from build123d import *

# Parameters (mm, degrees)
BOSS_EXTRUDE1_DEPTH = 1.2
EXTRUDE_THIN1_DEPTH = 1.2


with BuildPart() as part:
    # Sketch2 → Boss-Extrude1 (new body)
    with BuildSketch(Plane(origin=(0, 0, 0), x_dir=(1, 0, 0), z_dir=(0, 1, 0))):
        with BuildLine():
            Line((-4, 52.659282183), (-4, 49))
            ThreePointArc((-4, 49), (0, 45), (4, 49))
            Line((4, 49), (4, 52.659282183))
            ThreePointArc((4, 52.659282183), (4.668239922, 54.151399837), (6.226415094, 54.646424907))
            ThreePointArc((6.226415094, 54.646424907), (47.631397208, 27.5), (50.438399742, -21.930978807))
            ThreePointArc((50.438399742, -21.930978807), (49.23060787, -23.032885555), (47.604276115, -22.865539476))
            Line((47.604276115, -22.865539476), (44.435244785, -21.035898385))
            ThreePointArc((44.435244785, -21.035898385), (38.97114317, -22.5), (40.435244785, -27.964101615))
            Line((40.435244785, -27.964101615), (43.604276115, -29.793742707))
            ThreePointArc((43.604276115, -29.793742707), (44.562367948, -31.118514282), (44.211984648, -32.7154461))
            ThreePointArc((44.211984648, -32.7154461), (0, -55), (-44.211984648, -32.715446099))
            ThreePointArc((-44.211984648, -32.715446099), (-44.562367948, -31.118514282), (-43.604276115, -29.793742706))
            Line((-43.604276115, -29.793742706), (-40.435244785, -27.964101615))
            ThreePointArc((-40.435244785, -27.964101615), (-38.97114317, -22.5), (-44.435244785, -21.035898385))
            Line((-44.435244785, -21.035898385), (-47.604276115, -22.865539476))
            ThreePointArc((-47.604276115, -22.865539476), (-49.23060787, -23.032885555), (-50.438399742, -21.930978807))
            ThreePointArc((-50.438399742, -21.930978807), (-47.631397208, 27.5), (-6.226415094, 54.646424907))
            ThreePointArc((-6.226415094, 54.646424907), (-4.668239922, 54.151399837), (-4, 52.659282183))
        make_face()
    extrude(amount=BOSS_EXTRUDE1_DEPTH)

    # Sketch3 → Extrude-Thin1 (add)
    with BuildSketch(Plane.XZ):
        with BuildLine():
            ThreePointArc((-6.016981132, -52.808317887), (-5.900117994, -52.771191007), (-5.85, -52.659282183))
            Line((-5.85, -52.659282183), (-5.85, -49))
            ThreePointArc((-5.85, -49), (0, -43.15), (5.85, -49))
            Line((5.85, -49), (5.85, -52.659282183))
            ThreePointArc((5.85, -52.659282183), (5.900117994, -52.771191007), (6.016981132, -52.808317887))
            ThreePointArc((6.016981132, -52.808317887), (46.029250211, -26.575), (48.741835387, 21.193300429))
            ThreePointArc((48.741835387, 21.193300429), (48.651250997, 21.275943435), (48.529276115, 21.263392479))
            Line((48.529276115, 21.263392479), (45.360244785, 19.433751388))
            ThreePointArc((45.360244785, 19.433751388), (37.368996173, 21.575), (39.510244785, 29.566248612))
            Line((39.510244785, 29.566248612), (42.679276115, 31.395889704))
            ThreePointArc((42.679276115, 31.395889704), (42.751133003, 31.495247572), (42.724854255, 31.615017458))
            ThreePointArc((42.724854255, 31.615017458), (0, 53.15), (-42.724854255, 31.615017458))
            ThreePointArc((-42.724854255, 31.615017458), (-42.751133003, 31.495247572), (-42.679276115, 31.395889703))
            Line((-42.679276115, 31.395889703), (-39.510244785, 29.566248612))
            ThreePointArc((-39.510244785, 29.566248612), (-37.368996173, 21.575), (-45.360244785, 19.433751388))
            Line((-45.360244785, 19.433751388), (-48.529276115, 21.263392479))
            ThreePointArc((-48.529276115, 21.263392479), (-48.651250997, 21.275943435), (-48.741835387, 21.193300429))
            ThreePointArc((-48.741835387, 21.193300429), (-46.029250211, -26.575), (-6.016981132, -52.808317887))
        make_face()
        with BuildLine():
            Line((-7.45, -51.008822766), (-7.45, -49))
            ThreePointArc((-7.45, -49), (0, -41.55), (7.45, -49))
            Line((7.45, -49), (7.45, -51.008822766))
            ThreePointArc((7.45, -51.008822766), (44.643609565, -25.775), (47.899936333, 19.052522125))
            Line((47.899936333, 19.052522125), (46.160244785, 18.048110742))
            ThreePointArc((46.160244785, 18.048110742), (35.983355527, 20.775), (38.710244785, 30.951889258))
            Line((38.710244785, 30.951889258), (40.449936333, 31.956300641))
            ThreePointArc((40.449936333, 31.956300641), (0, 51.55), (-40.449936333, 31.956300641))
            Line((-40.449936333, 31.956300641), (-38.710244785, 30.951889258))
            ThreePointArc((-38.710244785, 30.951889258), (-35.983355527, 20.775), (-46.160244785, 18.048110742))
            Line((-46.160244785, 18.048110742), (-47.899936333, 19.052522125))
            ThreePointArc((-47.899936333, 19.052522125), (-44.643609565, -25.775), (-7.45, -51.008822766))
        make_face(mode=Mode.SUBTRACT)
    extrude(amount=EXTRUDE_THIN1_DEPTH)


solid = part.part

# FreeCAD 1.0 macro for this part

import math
import FreeCAD as App
import Part
import Sketcher
Q = App.Units.Quantity

doc = App.newDocument("Part")
body = doc.addObject("PartDesign::Body", "Body")

sketch1 = body.newObject("Sketcher::SketchObject", "Sketch")
sketch1.AttachmentSupport = (doc.getObject("XZ_Plane"), [""])
sketch1.MapMode = "FlatFace"
sketch1.addGeometry([
    Part.LineSegment(App.Vector(-4, -49, 0), App.Vector(-4, -52.7, 0)),
    Part.ArcOfCircle(Part.Circle(App.Vector(-6, -52.7, 0), App.Vector(0, 0, 1), 2), math.radians(-97), math.radians(0)),
    Part.ArcOfCircle(Part.Circle(App.Vector(0, 0, 0), App.Vector(0, 0, 1), 55), math.radians(157), math.radians(263)),
    Part.ArcOfCircle(Part.Circle(App.Vector(-48.6, 21.1, 0), App.Vector(0, 0, 1), 2), math.radians(60), math.radians(157)),
    Part.LineSegment(App.Vector(-47.6, 22.9, 0), App.Vector(-44.4, 21, 0)),
    Part.ArcOfCircle(Part.Circle(App.Vector(-42.4, 24.5, 0), App.Vector(0, 0, 1), 4), math.radians(-120), math.radians(60)),
    Part.LineSegment(App.Vector(-40.4, 28, 0), App.Vector(-43.6, 29.8, 0)),
    Part.ArcOfCircle(Part.Circle(App.Vector(-42.6, 31.5, 0), App.Vector(0, 0, 1), 2), math.radians(143), math.radians(240)),
    Part.ArcOfCircle(Part.Circle(App.Vector(0, 0, 0), App.Vector(0, 0, 1), 55), math.radians(37), math.radians(143)),
    Part.ArcOfCircle(Part.Circle(App.Vector(42.6, 31.5, 0), App.Vector(0, 0, 1), 2), math.radians(-60), math.radians(37)),
    Part.LineSegment(App.Vector(43.6, 29.8, 0), App.Vector(40.4, 28, 0)),
    Part.ArcOfCircle(Part.Circle(App.Vector(42.4, 24.5, 0), App.Vector(0, 0, 1), 4), math.radians(120), math.radians(300)),
    Part.LineSegment(App.Vector(44.4, 21, 0), App.Vector(47.6, 22.9, 0)),
    Part.ArcOfCircle(Part.Circle(App.Vector(48.6, 21.1, 0), App.Vector(0, 0, 1), 2), math.radians(23), math.radians(120)),
    Part.ArcOfCircle(Part.Circle(App.Vector(0, 0, 0), App.Vector(0, 0, 1), 55), math.radians(-83), math.radians(23)),
    Part.ArcOfCircle(Part.Circle(App.Vector(6, -52.7, 0), App.Vector(0, 0, 1), 2), math.radians(-180), math.radians(-83)),
    Part.LineSegment(App.Vector(4, -52.7, 0), App.Vector(4, -49, 0)),
    Part.ArcOfCircle(Part.Circle(App.Vector(0, -49, 0), App.Vector(0, 0, 1), 4), math.radians(0), math.radians(180)),
], False)
sketch1.addConstraint([
    Sketcher.Constraint("Tangent", 0, 2, 1, 2),
    Sketcher.Constraint("Tangent", 1, 1, 2, 2),
    Sketcher.Constraint("Tangent", 2, 1, 3, 2),
    Sketcher.Constraint("Tangent", 3, 1, 4, 1),
    Sketcher.Constraint("Tangent", 4, 2, 5, 1),
    Sketcher.Constraint("Tangent", 5, 2, 6, 1),
    Sketcher.Constraint("Tangent", 6, 2, 7, 2),
    Sketcher.Constraint("Tangent", 7, 1, 8, 2),
    Sketcher.Constraint("Tangent", 8, 1, 9, 2),
    Sketcher.Constraint("Tangent", 9, 1, 10, 1),
    Sketcher.Constraint("Tangent", 10, 2, 11, 1),
    Sketcher.Constraint("Tangent", 11, 2, 12, 1),
    Sketcher.Constraint("Tangent", 12, 2, 13, 2),
    Sketcher.Constraint("Tangent", 13, 1, 14, 2),
    Sketcher.Constraint("Tangent", 14, 1, 15, 2),
    Sketcher.Constraint("Tangent", 15, 1, 16, 1),
    Sketcher.Constraint("Tangent", 16, 2, 17, 1),
    Sketcher.Constraint("Tangent", 17, 2, 0, 1),
    Sketcher.Constraint("Vertical", 0),
    Sketcher.Constraint("Vertical", 16),
    Sketcher.Constraint("Coincident", 2, 3, -1, 1),
    Sketcher.Constraint("Coincident", 8, 3, -1, 1),
    Sketcher.Constraint("Coincident", 14, 3, -1, 1),
    Sketcher.Constraint("Equal", 1, 3),
    Sketcher.Constraint("Equal", 3, 7),
    Sketcher.Constraint("Equal", 2, 8),
    Sketcher.Constraint("Equal", 7, 9),
    Sketcher.Constraint("Equal", 5, 11),
    Sketcher.Constraint("Equal", 9, 13),
    Sketcher.Constraint("Equal", 8, 14),
    Sketcher.Constraint("Equal", 13, 15),
    Sketcher.Constraint("Equal", 11, 17),
    Sketcher.Constraint("Symmetric", 5, 3, 11, 3, -2),
    Sketcher.Constraint("PointOnObject", 17, 3, -2),
    Sketcher.Constraint("Parallel", 4, 6),
    Sketcher.Constraint("Parallel", 10, 12),
    Sketcher.Constraint("Horizontal", 7, 3, 9, 3),
    Sketcher.Constraint("Equal", 4, 6),
    Sketcher.Constraint("Radius", 1, 2.0),
    Sketcher.Constraint("Radius", 2, 55.0),
    Sketcher.Constraint("Radius", 5, 4.0),
    Sketcher.Constraint("Angle", 4, Q("-30 deg")),
    Sketcher.Constraint("DistanceY", 17, 3, -1, 1, 49.0),
    Sketcher.Constraint("DistanceY", -1, 1, 5, 3, 24.5),
])
pad1 = body.newObject("PartDesign::Pad", "Pad")
pad1.Profile = sketch1
pad1.Length = 1.2
pad1.Reversed = True

sketch2 = body.newObject("Sketcher::SketchObject", "Sketch001")
sketch2.AttachmentSupport = (doc.getObject("XZ_Plane"), [""])
sketch2.MapMode = "FlatFace"
sketch2.addGeometry([
    Part.ArcOfCircle(Part.Circle(App.Vector(-6, -52.66, 0), App.Vector(0, 0, 1), 0.15), math.radians(-97), math.radians(0)),
    Part.LineSegment(App.Vector(-5.85, -52.66, 0), App.Vector(-5.85, -49, 0)),
    Part.ArcOfCircle(Part.Circle(App.Vector(0, -49, 0), App.Vector(0, 0, 1), 5.85), math.radians(0), math.radians(180)),
    Part.LineSegment(App.Vector(5.85, -49, 0), App.Vector(5.85, -52.66, 0)),
    Part.ArcOfCircle(Part.Circle(App.Vector(6, -52.66, 0), App.Vector(0, 0, 1), 0.15), math.radians(180), math.radians(277)),
    Part.ArcOfCircle(Part.Circle(App.Vector(0, 0, 0), App.Vector(0, 0, 1), 53.15), math.radians(-83), math.radians(23)),
    Part.ArcOfCircle(Part.Circle(App.Vector(48.6, 21.13, 0), App.Vector(0, 0, 1), 0.15), math.radians(23), math.radians(120)),
    Part.LineSegment(App.Vector(48.53, 21.26, 0), App.Vector(45.36, 19.43, 0)),
    Part.ArcOfCircle(Part.Circle(App.Vector(42.44, 24.5, 0), App.Vector(0, 0, 1), 5.85), math.radians(120), math.radians(300)),
    Part.LineSegment(App.Vector(39.51, 29.57, 0), App.Vector(42.68, 31.4, 0)),
    Part.ArcOfCircle(Part.Circle(App.Vector(42.6, 31.53, 0), App.Vector(0, 0, 1), 0.15), math.radians(-60), math.radians(37)),
    Part.ArcOfCircle(Part.Circle(App.Vector(0, 0, 0), App.Vector(0, 0, 1), 53.15), math.radians(37), math.radians(143)),
    Part.ArcOfCircle(Part.Circle(App.Vector(-42.6, 31.53, 0), App.Vector(0, 0, 1), 0.15), math.radians(143), math.radians(240)),
    Part.LineSegment(App.Vector(-42.68, 31.4, 0), App.Vector(-39.51, 29.57, 0)),
    Part.ArcOfCircle(Part.Circle(App.Vector(-42.44, 24.5, 0), App.Vector(0, 0, 1), 5.85), math.radians(-120), math.radians(60)),
    Part.LineSegment(App.Vector(-45.36, 19.43, 0), App.Vector(-48.53, 21.26, 0)),
    Part.ArcOfCircle(Part.Circle(App.Vector(-48.6, 21.13, 0), App.Vector(0, 0, 1), 0.15), math.radians(60), math.radians(157)),
    Part.ArcOfCircle(Part.Circle(App.Vector(0, 0, 0), App.Vector(0, 0, 1), 53.15), math.radians(157), math.radians(263)),
    Part.LineSegment(App.Vector(-7.45, -49, 0), App.Vector(-7.45, -51.01, 0)),
    Part.ArcOfCircle(Part.Circle(App.Vector(0, 0, 0), App.Vector(0, 0, 1), 51.55), math.radians(158), math.radians(262)),
    Part.LineSegment(App.Vector(-47.9, 19.05, 0), App.Vector(-46.16, 18.05, 0)),
    Part.ArcOfCircle(Part.Circle(App.Vector(-42.44, 24.5, 0), App.Vector(0, 0, 1), 7.45), math.radians(-120), math.radians(60)),
    Part.LineSegment(App.Vector(-38.71, 30.95, 0), App.Vector(-40.45, 31.96, 0)),
    Part.ArcOfCircle(Part.Circle(App.Vector(0, 0, 0), App.Vector(0, 0, 1), 51.55), math.radians(38), math.radians(142)),
    Part.LineSegment(App.Vector(40.45, 31.96, 0), App.Vector(38.71, 30.95, 0)),
    Part.ArcOfCircle(Part.Circle(App.Vector(42.44, 24.5, 0), App.Vector(0, 0, 1), 7.45), math.radians(120), math.radians(300)),
    Part.LineSegment(App.Vector(46.16, 18.05, 0), App.Vector(47.9, 19.05, 0)),
    Part.ArcOfCircle(Part.Circle(App.Vector(0, 0, 0), App.Vector(0, 0, 1), 51.55), math.radians(-82), math.radians(22)),
    Part.LineSegment(App.Vector(7.45, -51.01, 0), App.Vector(7.45, -49, 0)),
    Part.ArcOfCircle(Part.Circle(App.Vector(0, -49, 0), App.Vector(0, 0, 1), 7.45), math.radians(0), math.radians(180)),
], False)
sketch2.addConstraint([
    Sketcher.Constraint("Tangent", 0, 2, 1, 1),
    Sketcher.Constraint("Tangent", 1, 2, 2, 2),
    Sketcher.Constraint("Tangent", 2, 1, 3, 1),
    Sketcher.Constraint("Tangent", 3, 2, 4, 1),
    Sketcher.Constraint("Tangent", 4, 2, 5, 1),
    Sketcher.Constraint("Tangent", 5, 2, 6, 1),
    Sketcher.Constraint("Tangent", 6, 2, 7, 1),
    Sketcher.Constraint("Tangent", 7, 2, 8, 2),
    Sketcher.Constraint("Tangent", 8, 1, 9, 1),
    Sketcher.Constraint("Tangent", 9, 2, 10, 1),
    Sketcher.Constraint("Tangent", 10, 2, 11, 1),
    Sketcher.Constraint("Tangent", 11, 2, 12, 1),
    Sketcher.Constraint("Tangent", 12, 2, 13, 1),
    Sketcher.Constraint("Tangent", 13, 2, 14, 2),
    Sketcher.Constraint("Tangent", 14, 1, 15, 1),
    Sketcher.Constraint("Tangent", 15, 2, 16, 1),
    Sketcher.Constraint("Tangent", 16, 2, 17, 1),
    Sketcher.Constraint("Tangent", 17, 2, 0, 1),
    Sketcher.Constraint("Coincident", 18, 2, 19, 2),
    Sketcher.Constraint("Coincident", 19, 1, 20, 1),
    Sketcher.Constraint("Tangent", 20, 2, 21, 1),
    Sketcher.Constraint("Tangent", 21, 2, 22, 1),
    Sketcher.Constraint("Coincident", 22, 2, 23, 2),
    Sketcher.Constraint("Coincident", 23, 1, 24, 1),
    Sketcher.Constraint("Tangent", 24, 2, 25, 1),
    Sketcher.Constraint("Tangent", 25, 2, 26, 1),
    Sketcher.Constraint("Coincident", 26, 2, 27, 2),
    Sketcher.Constraint("Coincident", 27, 1, 28, 1),
    Sketcher.Constraint("Tangent", 28, 2, 29, 1),
    Sketcher.Constraint("Tangent", 29, 2, 18, 1),
    Sketcher.Constraint("Vertical", 1),
    Sketcher.Constraint("Vertical", 3),
    Sketcher.Constraint("Vertical", 18),
    Sketcher.Constraint("Vertical", 28),
    Sketcher.Constraint("Coincident", 5, 3, -1, 1),
    Sketcher.Constraint("Coincident", 11, 3, -1, 1),
    Sketcher.Constraint("Coincident", 17, 3, -1, 1),
    Sketcher.Constraint("Coincident", 19, 3, -1, 1),
    Sketcher.Constraint("Coincident", 23, 3, -1, 1),
    Sketcher.Constraint("Coincident", 27, 3, -1, 1),
    Sketcher.Constraint("Coincident", 21, 3, 14, 3),
    Sketcher.Constraint("Coincident", 25, 3, 8, 3),
    Sketcher.Constraint("Coincident", 29, 3, 2, 3),
    Sketcher.Constraint("Equal", 0, 4),
    Sketcher.Constraint("Equal", 4, 6),
    Sketcher.Constraint("Equal", 2, 8),
    Sketcher.Constraint("Equal", 6, 10),
    Sketcher.Constraint("Equal", 5, 11),
    Sketcher.Constraint("Equal", 10, 12),
    Sketcher.Constraint("Equal", 8, 14),
    Sketcher.Constraint("Equal", 12, 16),
    Sketcher.Constraint("Equal", 11, 17),
    Sketcher.Constraint("Equal", 19, 23),
    Sketcher.Constraint("Equal", 21, 25),
    Sketcher.Constraint("Equal", 23, 27),
    Sketcher.Constraint("Equal", 25, 29),
    Sketcher.Constraint("Symmetric", 8, 3, 14, 3, -2),
    Sketcher.Constraint("PointOnObject", 2, 3, -2),
    Sketcher.Constraint("Parallel", 7, 9),
    Sketcher.Constraint("Parallel", 13, 15),
    Sketcher.Constraint("Parallel", 15, 20),
    Sketcher.Constraint("Parallel", 20, 22),
    Sketcher.Constraint("Parallel", 9, 24),
    Sketcher.Constraint("Parallel", 24, 26),
    Sketcher.Constraint("Horizontal", 10, 3, 12, 3),
    Sketcher.Constraint("Equal", 7, 9),
    Sketcher.Constraint("Angle", 7, Q("-150 deg")),
    Sketcher.Constraint("Radius", 0, 0.15),
    Sketcher.Constraint("Radius", 2, 5.85),
    Sketcher.Constraint("Radius", 5, 53.15),
    Sketcher.Constraint("Radius", 19, 51.55),
    Sketcher.Constraint("Radius", 21, 7.45),
    Sketcher.Constraint("DistanceY", 2, 3, -1, 1, 49.0),
    Sketcher.Constraint("DistanceY", -1, 1, 8, 3, 24.5),
])
pad2 = body.newObject("PartDesign::Pad", "Pad001")
pad2.Profile = sketch2
pad2.Length = 1.2

doc.recompute()
